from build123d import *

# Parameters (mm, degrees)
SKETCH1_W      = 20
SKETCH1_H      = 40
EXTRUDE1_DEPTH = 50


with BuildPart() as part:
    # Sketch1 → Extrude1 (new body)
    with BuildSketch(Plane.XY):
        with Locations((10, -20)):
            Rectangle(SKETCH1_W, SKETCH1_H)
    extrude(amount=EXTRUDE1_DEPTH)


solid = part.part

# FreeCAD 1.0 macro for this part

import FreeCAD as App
import Part
import Sketcher

V = App.Vector

doc = App.newDocument("Part")
body = doc.addObject("PartDesign::Body", "Body")

sketch1 = doc.addObject("Sketcher::SketchObject", "Sketch")
body.addObject(sketch1)
sketch1.AttachmentSupport = (doc.XY_Plane, [""])
sketch1.MapMode = "FlatFace"
sketch1.addGeometry([
    Part.LineSegment(V(0, 0, 0), V(0, -40, 0)),
    Part.LineSegment(V(0, -40, 0), V(20, -40, 0)),
    Part.LineSegment(V(20, -40, 0), V(20, 0, 0)),
    Part.LineSegment(V(20, 0, 0), V(0, 0, 0)),
], False)
sketch1.addConstraint([
    Sketcher.Constraint("Coincident", 0, 2, 1, 1),
    Sketcher.Constraint("Coincident", 1, 2, 2, 1),
    Sketcher.Constraint("Coincident", 2, 2, 3, 1),
    Sketcher.Constraint("Coincident", 3, 2, 0, 1),
    Sketcher.Constraint("Vertical", 0),
    Sketcher.Constraint("Horizontal", 1),
    Sketcher.Constraint("Vertical", 2),
    Sketcher.Constraint("Horizontal", 3),
    Sketcher.Constraint("Coincident", 3, 2, -1, 1),
    Sketcher.Constraint("DistanceX", 1, 1, 1, 2, 20.0),
    Sketcher.Constraint("DistanceY", 0, 2, 0, 1, 40.0),
])
pad1 = doc.addObject("PartDesign::Pad", "Pad")
body.addObject(pad1)
pad1.Profile = sketch1
pad1.Length = 50

doc.recompute()
